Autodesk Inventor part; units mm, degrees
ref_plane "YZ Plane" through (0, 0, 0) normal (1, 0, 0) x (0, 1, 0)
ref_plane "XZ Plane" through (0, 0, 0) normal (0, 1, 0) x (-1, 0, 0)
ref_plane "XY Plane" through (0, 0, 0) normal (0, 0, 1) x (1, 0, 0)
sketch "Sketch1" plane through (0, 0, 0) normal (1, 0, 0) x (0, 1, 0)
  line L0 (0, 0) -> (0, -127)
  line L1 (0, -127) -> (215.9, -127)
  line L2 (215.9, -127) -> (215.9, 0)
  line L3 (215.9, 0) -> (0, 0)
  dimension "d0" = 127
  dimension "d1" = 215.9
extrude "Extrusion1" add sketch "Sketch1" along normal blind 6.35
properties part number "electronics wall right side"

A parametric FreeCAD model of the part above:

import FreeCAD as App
import Part
import Sketcher
Q = App.Units.Quantity

doc = App.newDocument("Part")
body = doc.addObject("PartDesign::Body", "Body")

sketch1 = body.newObject("Sketcher::SketchObject", "Sketch")
sketch1.AttachmentSupport = (doc.getObject("YZ_Plane"), [""])
sketch1.MapMode = "FlatFace"
sketch1.addGeometry([
    Part.LineSegment(App.Vector(216, 0, 0), App.Vector(0, 0, 0)),
    Part.LineSegment(App.Vector(0, 0, 0), App.Vector(0, -127, 0)),
    Part.LineSegment(App.Vector(0, -127, 0), App.Vector(216, -127, 0)),
    Part.LineSegment(App.Vector(216, -127, 0), App.Vector(216, 0, 0)),
], False)
sketch1.addConstraint([
    Sketcher.Constraint("Coincident", 0, 2, 1, 1),
    Sketcher.Constraint("Coincident", 1, 2, 2, 1),
    Sketcher.Constraint("Coincident", 2, 2, 3, 1),
    Sketcher.Constraint("Coincident", 3, 2, 0, 1),
    Sketcher.Constraint("Horizontal", 0),
    Sketcher.Constraint("Vertical", 1),
    Sketcher.Constraint("Horizontal", 2),
    Sketcher.Constraint("Vertical", 3),
    Sketcher.Constraint("Coincident", 0, 2, -1, 1),
    Sketcher.Constraint("DistanceY", 1, 2, 1, 1, Q("5 in")),
    Sketcher.Constraint("DistanceX", 0, 2, 0, 1, Q("8.5 in")),
])
pad1 = body.newObject("PartDesign::Pad", "Pad")
pad1.Profile = sketch1
pad1.Length = Q("0.25 in")

doc.recompute()
